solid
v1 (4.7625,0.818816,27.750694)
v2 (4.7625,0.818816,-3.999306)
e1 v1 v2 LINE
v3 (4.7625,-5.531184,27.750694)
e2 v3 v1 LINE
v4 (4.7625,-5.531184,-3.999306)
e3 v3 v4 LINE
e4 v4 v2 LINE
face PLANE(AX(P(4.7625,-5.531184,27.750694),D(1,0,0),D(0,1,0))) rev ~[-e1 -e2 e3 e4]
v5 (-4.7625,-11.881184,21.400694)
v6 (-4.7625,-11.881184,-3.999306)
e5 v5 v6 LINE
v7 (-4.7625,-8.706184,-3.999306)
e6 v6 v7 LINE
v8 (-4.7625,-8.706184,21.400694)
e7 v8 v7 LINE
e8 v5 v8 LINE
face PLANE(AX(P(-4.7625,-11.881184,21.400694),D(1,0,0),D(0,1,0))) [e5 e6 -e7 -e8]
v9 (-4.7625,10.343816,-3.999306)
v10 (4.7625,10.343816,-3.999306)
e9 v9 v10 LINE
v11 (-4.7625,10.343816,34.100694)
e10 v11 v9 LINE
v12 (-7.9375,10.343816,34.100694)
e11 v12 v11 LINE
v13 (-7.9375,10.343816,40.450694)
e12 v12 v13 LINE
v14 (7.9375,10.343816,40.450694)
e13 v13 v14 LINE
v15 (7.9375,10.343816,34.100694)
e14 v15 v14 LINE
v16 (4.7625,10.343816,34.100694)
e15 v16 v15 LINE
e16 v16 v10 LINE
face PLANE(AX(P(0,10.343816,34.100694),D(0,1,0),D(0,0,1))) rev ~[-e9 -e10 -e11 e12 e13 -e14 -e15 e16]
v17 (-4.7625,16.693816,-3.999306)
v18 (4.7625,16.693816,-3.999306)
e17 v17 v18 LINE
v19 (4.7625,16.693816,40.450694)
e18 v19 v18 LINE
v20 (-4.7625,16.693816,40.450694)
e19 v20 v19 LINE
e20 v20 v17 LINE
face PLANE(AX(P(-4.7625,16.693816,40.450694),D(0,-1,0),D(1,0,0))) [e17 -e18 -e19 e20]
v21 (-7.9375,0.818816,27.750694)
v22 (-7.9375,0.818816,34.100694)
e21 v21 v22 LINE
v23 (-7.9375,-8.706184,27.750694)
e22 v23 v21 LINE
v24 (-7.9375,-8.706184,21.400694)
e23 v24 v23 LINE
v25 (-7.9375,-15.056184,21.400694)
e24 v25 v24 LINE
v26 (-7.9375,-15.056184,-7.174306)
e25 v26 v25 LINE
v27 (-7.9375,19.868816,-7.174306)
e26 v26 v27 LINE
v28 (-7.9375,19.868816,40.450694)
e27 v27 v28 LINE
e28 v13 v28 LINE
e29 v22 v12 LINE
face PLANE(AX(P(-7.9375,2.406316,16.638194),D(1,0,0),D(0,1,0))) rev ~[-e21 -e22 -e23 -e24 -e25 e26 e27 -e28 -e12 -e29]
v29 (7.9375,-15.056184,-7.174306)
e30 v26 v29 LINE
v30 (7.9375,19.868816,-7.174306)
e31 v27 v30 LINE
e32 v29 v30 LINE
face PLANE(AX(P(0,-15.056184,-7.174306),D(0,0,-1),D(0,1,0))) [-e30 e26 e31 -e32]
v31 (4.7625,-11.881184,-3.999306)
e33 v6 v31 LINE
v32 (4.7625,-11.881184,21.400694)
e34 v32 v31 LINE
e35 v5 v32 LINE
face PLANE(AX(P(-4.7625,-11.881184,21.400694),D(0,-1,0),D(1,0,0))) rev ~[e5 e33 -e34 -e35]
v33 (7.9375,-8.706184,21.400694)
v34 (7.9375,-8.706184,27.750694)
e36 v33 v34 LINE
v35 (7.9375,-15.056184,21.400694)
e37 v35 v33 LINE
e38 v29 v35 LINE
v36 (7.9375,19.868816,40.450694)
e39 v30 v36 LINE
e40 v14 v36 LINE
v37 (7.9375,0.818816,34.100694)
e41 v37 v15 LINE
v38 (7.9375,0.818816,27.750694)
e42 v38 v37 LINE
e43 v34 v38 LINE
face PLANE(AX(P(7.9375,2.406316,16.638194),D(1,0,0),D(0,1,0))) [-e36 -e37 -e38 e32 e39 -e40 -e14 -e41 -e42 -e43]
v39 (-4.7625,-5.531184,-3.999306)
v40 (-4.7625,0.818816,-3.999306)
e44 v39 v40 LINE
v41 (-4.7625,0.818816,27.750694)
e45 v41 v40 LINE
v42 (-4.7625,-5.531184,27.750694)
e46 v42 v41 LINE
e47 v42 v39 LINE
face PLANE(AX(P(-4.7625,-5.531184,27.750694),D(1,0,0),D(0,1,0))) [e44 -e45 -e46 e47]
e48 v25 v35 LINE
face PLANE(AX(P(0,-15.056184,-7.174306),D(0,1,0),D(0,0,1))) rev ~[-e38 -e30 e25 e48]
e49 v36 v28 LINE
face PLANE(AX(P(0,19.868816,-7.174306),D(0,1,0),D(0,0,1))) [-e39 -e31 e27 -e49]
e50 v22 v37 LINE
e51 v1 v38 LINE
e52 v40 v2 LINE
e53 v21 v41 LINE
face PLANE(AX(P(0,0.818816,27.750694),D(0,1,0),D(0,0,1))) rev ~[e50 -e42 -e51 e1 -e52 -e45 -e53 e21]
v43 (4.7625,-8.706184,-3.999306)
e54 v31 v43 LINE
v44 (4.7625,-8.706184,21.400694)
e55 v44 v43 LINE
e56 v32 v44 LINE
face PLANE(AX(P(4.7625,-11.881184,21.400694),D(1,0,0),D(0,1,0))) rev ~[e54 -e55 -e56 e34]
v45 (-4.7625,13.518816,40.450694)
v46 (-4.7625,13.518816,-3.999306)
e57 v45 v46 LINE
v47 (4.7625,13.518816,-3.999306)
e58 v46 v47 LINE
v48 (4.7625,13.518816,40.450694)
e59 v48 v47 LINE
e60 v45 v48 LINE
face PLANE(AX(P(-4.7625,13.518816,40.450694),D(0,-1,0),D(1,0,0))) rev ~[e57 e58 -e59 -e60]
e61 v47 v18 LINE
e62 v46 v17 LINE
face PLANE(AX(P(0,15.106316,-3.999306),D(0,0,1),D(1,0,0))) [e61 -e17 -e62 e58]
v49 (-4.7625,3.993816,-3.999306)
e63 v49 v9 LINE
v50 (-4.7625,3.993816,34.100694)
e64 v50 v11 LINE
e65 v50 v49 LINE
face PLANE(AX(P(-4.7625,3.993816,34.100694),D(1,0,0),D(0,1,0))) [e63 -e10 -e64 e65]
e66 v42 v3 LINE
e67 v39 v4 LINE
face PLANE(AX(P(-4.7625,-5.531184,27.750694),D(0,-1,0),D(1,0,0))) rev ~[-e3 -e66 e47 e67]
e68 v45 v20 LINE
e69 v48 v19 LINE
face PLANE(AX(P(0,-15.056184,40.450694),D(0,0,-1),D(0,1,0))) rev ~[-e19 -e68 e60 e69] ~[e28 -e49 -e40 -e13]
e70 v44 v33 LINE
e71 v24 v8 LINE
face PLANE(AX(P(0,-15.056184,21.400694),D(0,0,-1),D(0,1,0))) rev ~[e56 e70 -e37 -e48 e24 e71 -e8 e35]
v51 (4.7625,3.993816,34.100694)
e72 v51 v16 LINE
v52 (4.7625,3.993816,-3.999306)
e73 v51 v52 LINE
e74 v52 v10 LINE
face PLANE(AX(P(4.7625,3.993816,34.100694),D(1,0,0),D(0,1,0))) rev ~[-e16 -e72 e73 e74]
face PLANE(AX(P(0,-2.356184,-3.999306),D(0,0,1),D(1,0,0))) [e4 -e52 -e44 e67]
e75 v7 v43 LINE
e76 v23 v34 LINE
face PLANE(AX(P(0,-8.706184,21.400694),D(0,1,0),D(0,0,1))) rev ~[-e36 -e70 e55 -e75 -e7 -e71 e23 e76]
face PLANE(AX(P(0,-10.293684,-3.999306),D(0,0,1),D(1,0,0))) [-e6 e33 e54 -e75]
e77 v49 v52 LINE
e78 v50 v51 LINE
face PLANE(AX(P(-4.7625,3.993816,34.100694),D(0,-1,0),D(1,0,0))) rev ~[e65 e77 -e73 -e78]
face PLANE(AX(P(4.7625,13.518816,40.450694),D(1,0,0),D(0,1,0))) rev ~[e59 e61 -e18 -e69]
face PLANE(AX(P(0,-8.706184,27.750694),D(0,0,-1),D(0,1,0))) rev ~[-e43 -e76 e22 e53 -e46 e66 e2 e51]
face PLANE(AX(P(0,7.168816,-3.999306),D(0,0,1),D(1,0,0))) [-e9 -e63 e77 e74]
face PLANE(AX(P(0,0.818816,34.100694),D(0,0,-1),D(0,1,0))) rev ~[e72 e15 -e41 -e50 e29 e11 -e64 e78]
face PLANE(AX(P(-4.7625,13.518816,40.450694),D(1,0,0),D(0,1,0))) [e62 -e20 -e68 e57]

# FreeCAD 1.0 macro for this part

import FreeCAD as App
import Part
import Sketcher

V = App.Vector
Q = App.Units.Quantity

doc = App.newDocument("Part")
body = doc.addObject("PartDesign::Body", "Body")

sketch1 = body.newObject("Sketcher::SketchObject", "Sketch")
sketch1.AttachmentSupport = (doc.getObject("YZ_Plane"), [""])
sketch1.MapMode = "FlatFace"
sketch1.addGeometry([
    Part.LineSegment(V(-15.056184, 40.450694, 0), V(-15.056184, -7.174306, 0)),
    Part.LineSegment(V(-15.056184, -7.174306, 0), V(19.868816, -7.174306, 0)),
    Part.LineSegment(V(19.868816, -7.174306, 0), V(19.868816, 40.450694, 0)),
    Part.LineSegment(V(19.868816, 40.450694, 0), V(-15.056184, 40.450694, 0)),
], False)
sketch1.addConstraint([
    Sketcher.Constraint("Coincident", 0, 2, 1, 1),
    Sketcher.Constraint("Coincident", 1, 2, 2, 1),
    Sketcher.Constraint("Coincident", 2, 2, 3, 1),
    Sketcher.Constraint("Coincident", 3, 2, 0, 1),
    Sketcher.Constraint("Vertical", 0),
    Sketcher.Constraint("Horizontal", 1),
    Sketcher.Constraint("Vertical", 2),
    Sketcher.Constraint("Horizontal", 3),
    Sketcher.Constraint("DistanceX", 1, 1, 1, 2, Q("1.375 in")),
    Sketcher.Constraint("DistanceY", 0, 2, 0, 1, Q("1.875 in")),
    Sketcher.Constraint("DistanceX", 0, 2, -1, 1, Q("15.056184 mm")),
    Sketcher.Constraint("DistanceY", 0, 2, -1, 1, Q("7.174306 mm")),
])
pad1 = body.newObject("PartDesign::Pad", "Pad")
pad1.Profile = sketch1
pad1.Length = Q("0.625 in")
pad1.Midplane = True

sketch2 = body.newObject("Sketcher::SketchObject", "Sketch001")
sketch2.AttachmentSupport = (doc.getObject("YZ_Plane"), [""])
sketch2.MapMode = "FlatFace"
sketch2.addGeometry([
    Part.LineSegment(V(-15.056184, 46.800694, 0), V(-15.056184, 21.400694, 0)),
    Part.LineSegment(V(-15.056184, 21.400694, 0), V(-8.706184, 21.400694, 0)),
    Part.LineSegment(V(-8.706184, 21.400694, 0), V(-8.706184, 27.750694, 0)),
    Part.LineSegment(V(-8.706184, 27.750694, 0), V(0.818816, 27.750694, 0)),
    Part.LineSegment(V(0.818816, 27.750694, 0), V(0.818816, 34.100694, 0)),
    Part.LineSegment(V(0.818816, 34.100694, 0), V(10.343816, 34.100694, 0)),
    Part.LineSegment(V(10.343816, 34.100694, 0), V(10.343816, 40.450694, 0)),
    Part.LineSegment(V(10.343816, 40.450694, 0), V(19.868816, 40.450694, 0)),
    Part.LineSegment(V(19.868816, 40.450694, 0), V(19.868816, 46.800694, 0)),
    Part.LineSegment(V(19.868816, 46.800694, 0), V(-15.056184, 46.800694, 0)),
], False)
sketch2.addConstraint([
    Sketcher.Constraint("Coincident", 0, 2, 1, 1),
    Sketcher.Constraint("Coincident", 1, 2, 2, 1),
    Sketcher.Constraint("Coincident", 2, 2, 3, 1),
    Sketcher.Constraint("Coincident", 3, 2, 4, 1),
    Sketcher.Constraint("Coincident", 4, 2, 5, 1),
    Sketcher.Constraint("Coincident", 5, 2, 6, 1),
    Sketcher.Constraint("Coincident", 6, 2, 7, 1),
    Sketcher.Constraint("Coincident", 7, 2, 8, 1),
    Sketcher.Constraint("Coincident", 8, 2, 9, 1),
    Sketcher.Constraint("Coincident", 9, 2, 0, 1),
    Sketcher.Constraint("Vertical", 0),
    Sketcher.Constraint("Horizontal", 1),
    Sketcher.Constraint("Vertical", 2),
    Sketcher.Constraint("Horizontal", 3),
    Sketcher.Constraint("Vertical", 4),
    Sketcher.Constraint("Horizontal", 5),
    Sketcher.Constraint("Vertical", 6),
    Sketcher.Constraint("Horizontal", 7),
    Sketcher.Constraint("Vertical", 8),
    Sketcher.Constraint("Horizontal", 9),
    Sketcher.Constraint("Equal", 3, 5),
    Sketcher.Constraint("Equal", 5, 7),
    Sketcher.Constraint("Equal", 1, 2),
    Sketcher.Constraint("Equal", 2, 4),
    Sketcher.Constraint("Equal", 4, 6),
    Sketcher.Constraint("Equal", 6, 8),
    Sketcher.Constraint("DistanceY", 0, 2, 0, 1, Q("1 in")),
    Sketcher.Constraint("DistanceX", 0, 2, 5, 2, Q("1 in")),
    Sketcher.Constraint("DistanceX", 0, 2, -1, 1, Q("15.056184 mm")),
    Sketcher.Constraint("DistanceY", -1, 1, 0, 2, Q("21.400694 mm")),
])
pocket1 = body.newObject("PartDesign::Pocket", "Pocket")
pocket1.Profile = sketch2
pocket1.Length = Q("1 in")
pocket1.Midplane = True

sketch3 = body.newObject("Sketcher::SketchObject", "Sketch002")
sketch3.AttachmentSupport = (doc.getObject("XY_Plane"), [""])
sketch3.MapMode = "FlatFace"
sketch3.AttachmentOffset = App.Placement(V(0, 0, 40.450694), App.Rotation())
sketch3.addGeometry([
    Part.LineSegment(V(-4.7625, 16.693816, 0), V(-4.7625, 13.518816, 0)),
    Part.LineSegment(V(-4.7625, 13.518816, 0), V(4.7625, 13.518816, 0)),
    Part.LineSegment(V(4.7625, 13.518816, 0), V(4.7625, 16.693816, 0)),
    Part.LineSegment(V(4.7625, 16.693816, 0), V(-4.7625, 16.693816, 0)),
], False)
sketch3.addConstraint([
    Sketcher.Constraint("Coincident", 0, 2, 1, 1),
    Sketcher.Constraint("Coincident", 1, 2, 2, 1),
    Sketcher.Constraint("Coincident", 2, 2, 3, 1),
    Sketcher.Constraint("Coincident", 3, 2, 0, 1),
    Sketcher.Constraint("Vertical", 0),
    Sketcher.Constraint("Horizontal", 1),
    Sketcher.Constraint("Vertical", 2),
    Sketcher.Constraint("Horizontal", 3),
    Sketcher.Constraint("DistanceX", 1, 1, 1, 2, Q("0.375 in")),
    Sketcher.Constraint("DistanceY", 0, 2, 0, 1, Q("0.125 in")),
    Sketcher.Constraint("DistanceX", 0, 2, -1, 1, Q("0.1875 in")),
    Sketcher.Constraint("DistanceY", -1, 1, 0, 2, Q("13.518816 mm")),
])
pocket2 = body.newObject("PartDesign::Pocket", "Pocket001")
pocket2.Profile = sketch3
pocket2.Length = Q("1.75 in")

sketch4 = body.newObject("Sketcher::SketchObject", "Sketch003")
sketch4.AttachmentSupport = (doc.getObject("XY_Plane"), [""])
sketch4.MapMode = "FlatFace"
sketch4.AttachmentOffset = App.Placement(V(0, 0, 34.100694), App.Rotation())
sketch4.addGeometry([
    Part.LineSegment(V(-4.7625, 10.343816, 0), V(-4.7625, 3.993816, 0)),
    Part.LineSegment(V(-4.7625, 3.993816, 0), V(4.7625, 3.993816, 0)),
    Part.LineSegment(V(4.7625, 3.993816, 0), V(4.7625, 10.343816, 0)),
    Part.LineSegment(V(4.7625, 10.343816, 0), V(-4.7625, 10.343816, 0)),
], False)
sketch4.addConstraint([
    Sketcher.Constraint("Coincident", 0, 2, 1, 1),
    Sketcher.Constraint("Coincident", 1, 2, 2, 1),
    Sketcher.Constraint("Coincident", 2, 2, 3, 1),
    Sketcher.Constraint("Coincident", 3, 2, 0, 1),
    Sketcher.Constraint("Vertical", 0),
    Sketcher.Constraint("Horizontal", 1),
    Sketcher.Constraint("Vertical", 2),
    Sketcher.Constraint("Horizontal", 3),
    Sketcher.Constraint("DistanceY", 0, 2, 0, 1, Q("0.25 in")),
    Sketcher.Constraint("DistanceX", 1, 1, 1, 2, Q("0.375 in")),
    Sketcher.Constraint("DistanceX", 0, 2, -1, 1, Q("0.1875 in")),
    Sketcher.Constraint("DistanceY", -1, 1, 0, 2, Q("3.993816 mm")),
])
pocket3 = body.newObject("PartDesign::Pocket", "Pocket002")
pocket3.Profile = sketch4
pocket3.Length = Q("1.5 in")

sketch5 = body.newObject("Sketcher::SketchObject", "Sketch004")
sketch5.AttachmentSupport = (doc.getObject("XY_Plane"), [""])
sketch5.MapMode = "FlatFace"
sketch5.AttachmentOffset = App.Placement(V(0, 0, 27.750694), App.Rotation())
sketch5.addGeometry([
    Part.LineSegment(V(-4.7625, 0.818816, 0), V(-4.7625, -5.531184, 0)),
    Part.LineSegment(V(-4.7625, -5.531184, 0), V(4.7625, -5.531184, 0)),
    Part.LineSegment(V(4.7625, -5.531184, 0), V(4.7625, 0.818816, 0)),
    Part.LineSegment(V(4.7625, 0.818816, 0), V(-4.7625, 0.818816, 0)),
], False)
sketch5.addConstraint([
    Sketcher.Constraint("Coincident", 0, 2, 1, 1),
    Sketcher.Constraint("Coincident", 1, 2, 2, 1),
    Sketcher.Constraint("Coincident", 2, 2, 3, 1),
    Sketcher.Constraint("Coincident", 3, 2, 0, 1),
    Sketcher.Constraint("Vertical", 0),
    Sketcher.Constraint("Horizontal", 1),
    Sketcher.Constraint("Vertical", 2),
    Sketcher.Constraint("Horizontal", 3),
    Sketcher.Constraint("DistanceY", 0, 2, 0, 1, Q("0.25 in")),
    Sketcher.Constraint("DistanceX", 1, 1, 1, 2, Q("0.375 in")),
    Sketcher.Constraint("DistanceX", 0, 2, -1, 1, Q("0.1875 in")),
    Sketcher.Constraint("DistanceY", 0, 2, -1, 1, Q("5.531184 mm")),
])
pocket4 = body.newObject("PartDesign::Pocket", "Pocket003")
pocket4.Profile = sketch5
pocket4.Length = Q("1.25 in")

sketch6 = body.newObject("Sketcher::SketchObject", "Sketch005")
sketch6.AttachmentSupport = (doc.getObject("XY_Plane"), [""])
sketch6.MapMode = "FlatFace"
sketch6.AttachmentOffset = App.Placement(V(0, 0, 21.400694), App.Rotation())
sketch6.addGeometry([
    Part.LineSegment(V(-4.7625, -8.706184, 0), V(-4.7625, -11.881184, 0)),
    Part.LineSegment(V(-4.7625, -11.881184, 0), V(4.7625, -11.881184, 0)),
    Part.LineSegment(V(4.7625, -11.881184, 0), V(4.7625, -8.706184, 0)),
    Part.LineSegment(V(4.7625, -8.706184, 0), V(-4.7625, -8.706184, 0)),
], False)
sketch6.addConstraint([
    Sketcher.Constraint("Coincident", 0, 2, 1, 1),
    Sketcher.Constraint("Coincident", 1, 2, 2, 1),
    Sketcher.Constraint("Coincident", 2, 2, 3, 1),
    Sketcher.Constraint("Coincident", 3, 2, 0, 1),
    Sketcher.Constraint("Vertical", 0),
    Sketcher.Constraint("Horizontal", 1),
    Sketcher.Constraint("Vertical", 2),
    Sketcher.Constraint("Horizontal", 3),
    Sketcher.Constraint("DistanceX", 1, 1, 1, 2, Q("0.375 in")),
    Sketcher.Constraint("DistanceY", 0, 2, 0, 1, Q("0.125 in")),
    Sketcher.Constraint("DistanceX", 0, 2, -1, 1, Q("0.1875 in")),
    Sketcher.Constraint("DistanceY", 0, 2, -1, 1, Q("11.881184 mm")),
])
pocket5 = body.newObject("PartDesign::Pocket", "Pocket004")
pocket5.Profile = sketch6
pocket5.Length = Q("1 in")

doc.recompute()
